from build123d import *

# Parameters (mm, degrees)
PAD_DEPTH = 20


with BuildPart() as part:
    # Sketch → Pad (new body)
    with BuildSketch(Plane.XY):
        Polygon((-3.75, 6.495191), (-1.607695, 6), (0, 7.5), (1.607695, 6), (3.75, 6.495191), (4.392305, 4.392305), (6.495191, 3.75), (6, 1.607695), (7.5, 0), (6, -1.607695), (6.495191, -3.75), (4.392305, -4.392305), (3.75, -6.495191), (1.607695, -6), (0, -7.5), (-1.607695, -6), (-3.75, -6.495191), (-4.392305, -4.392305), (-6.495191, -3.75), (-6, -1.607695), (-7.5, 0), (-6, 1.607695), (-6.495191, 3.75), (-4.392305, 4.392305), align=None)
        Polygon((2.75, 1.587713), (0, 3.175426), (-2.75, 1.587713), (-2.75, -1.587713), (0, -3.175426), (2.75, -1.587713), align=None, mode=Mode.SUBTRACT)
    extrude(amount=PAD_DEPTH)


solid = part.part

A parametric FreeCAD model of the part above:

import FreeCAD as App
import Part
import Sketcher

V = App.Vector
Q = App.Units.Quantity


def add_polygon(sketch, points):
    """Adds a closed chain of lines whose ends are joined by coincident constraints."""
    first, n = sketch.GeometryCount, len(points)
    for a, b in zip(points, points[1:] + points[:1]):
        sketch.addGeometry(Part.LineSegment(App.Vector(*a, 0), App.Vector(*b, 0)), False)
    for i in range(n):
        sketch.addConstraint(Sketcher.Constraint("Coincident", first + i, 2, first + (i + 1) % n, 1))

doc = App.newDocument("Part")
params = doc.addObject("Spreadsheet::Sheet", "Params")
for row, (alias, value) in enumerate([
    ("pad1_length", "20 mm"),
], start=1):
    params.set(f"A{row}", alias)
    params.set(f"B{row}", "=" + value)
    params.setAlias(f"B{row}", alias)

body = doc.addObject("PartDesign::Body", "Body")

sketch1 = body.newObject("Sketcher::SketchObject", "Sketch")
sketch1.AttachmentSupport = (doc.getObject("XY_Plane"), [""])
sketch1.MapMode = "FlatFace"
add_polygon(sketch1, [(-1.6, 6), (-3.8, 6.5), (-4.4, 4.4), (-6.5, 3.8), (-6, 1.6), (-7.5, 0), (-6, -1.6), (-6.5, -3.8), (-4.4, -4.4), (-3.8, -6.5), (-1.6, -6), (0, -7.5), (1.6, -6), (3.8, -6.5), (4.4, -4.4), (6.5, -3.8), (6, -1.6), (7.5, 0), (6, 1.6), (6.5, 3.8), (4.4, 4.4), (3.8, 6.5), (1.6, 6), (0, 7.5)])
add_polygon(sketch1, [(2.8, 1.6), (2.8, -1.6), (0, -3.2), (-2.8, -1.6), (-2.8, 1.6), (0, 3.2)])
sketch1.addConstraint(Sketcher.Constraint("Vertical", 24))
sketch1.addConstraint(Sketcher.Constraint("Vertical", 27))
sketch1.addConstraint(Sketcher.Constraint("Symmetric", 0, 2, 12, 2, -1, 1))
sketch1.addConstraint(Sketcher.Constraint("Symmetric", 1, 2, 13, 2, -1, 1))
sketch1.addConstraint(Sketcher.Constraint("Symmetric", 2, 2, 14, 2, -1, 1))
sketch1.addConstraint(Sketcher.Constraint("Symmetric", 3, 2, 15, 2, -1, 1))
sketch1.addConstraint(Sketcher.Constraint("Symmetric", 4, 2, 16, 2, -1, 1))
sketch1.addConstraint(Sketcher.Constraint("Symmetric", 5, 2, 17, 2, -1, 1))
sketch1.addConstraint(Sketcher.Constraint("Symmetric", 6, 2, 18, 2, -1, 1))
sketch1.addConstraint(Sketcher.Constraint("Symmetric", 7, 2, 19, 2, -1, 1))
sketch1.addConstraint(Sketcher.Constraint("Symmetric", 8, 2, 20, 2, -1, 1))
sketch1.addConstraint(Sketcher.Constraint("Symmetric", 9, 2, 21, 2, -1, 1))
sketch1.addConstraint(Sketcher.Constraint("Symmetric", 10, 2, 22, 2, -1, 1))
sketch1.addConstraint(Sketcher.Constraint("Symmetric", 11, 2, 23, 2, -1, 1))
sketch1.addConstraint(Sketcher.Constraint("Symmetric", 24, 2, 27, 2, -1, 1))
sketch1.addConstraint(Sketcher.Constraint("Symmetric", 25, 2, 28, 2, -1, 1))
sketch1.addConstraint(Sketcher.Constraint("Symmetric", 9, 2, 11, 2, -2))
sketch1.addConstraint(Sketcher.Constraint("Symmetric", 8, 2, 12, 2, -2))
sketch1.addConstraint(Sketcher.Constraint("Symmetric", 7, 2, 13, 2, -2))
sketch1.addConstraint(Sketcher.Constraint("Symmetric", 6, 2, 14, 2, -2))
sketch1.addConstraint(Sketcher.Constraint("Symmetric", 5, 2, 15, 2, -2))
sketch1.addConstraint(Sketcher.Constraint("PointOnObject", 4, 2, -1))
sketch1.addConstraint(Sketcher.Constraint("PointOnObject", 10, 2, -2))
sketch1.addConstraint(Sketcher.Constraint("PointOnObject", 25, 2, -2))
sketch1.addConstraint(Sketcher.Constraint("Perpendicular", 0, 6))
sketch1.addConstraint(Sketcher.Constraint("Perpendicular", 1, 7))
sketch1.addConstraint(Sketcher.Constraint("Perpendicular", 4, 10))
sketch1.addConstraint(Sketcher.Constraint("Parallel", 26, 29))
sketch1.addConstraint(Sketcher.Constraint("Horizontal", 24, 2, 26, 2))
sketch1.addConstraint(Sketcher.Constraint("Equal", 0, 1))
sketch1.addConstraint(Sketcher.Constraint("Equal", 1, 2))
sketch1.addConstraint(Sketcher.Constraint("Equal", 2, 3))
sketch1.addConstraint(Sketcher.Constraint("Equal", 3, 4))
sketch1.addConstraint(Sketcher.Constraint("Equal", 9, 10))
sketch1.addConstraint(Sketcher.Constraint("Angle", 25, Q("-150.000004 deg")))
sketch1.addConstraint(Sketcher.Constraint("DistanceX", 3, 2, -1, 1, Q("6 mm")))
sketch1.addConstraint(Sketcher.Constraint("DistanceY", 5, 2, 1, 2, Q("6 mm")))
sketch1.addConstraint(Sketcher.Constraint("DistanceX", 4, 2, -1, 1, Q("7.5 mm")))
sketch1.addConstraint(Sketcher.Constraint("DistanceY", 6, 2, 2, 2, Q("7.5 mm")))
sketch1.addConstraint(Sketcher.Constraint("DistanceX", -1, 1, 24, 2, Q("2.75 mm")))
sketch1.addConstraint(Sketcher.Constraint("DistanceY", 24, 2, 24, 1, Q("3.175426 mm")))
pad1 = body.newObject("PartDesign::Pad", "Pad")
pad1.Profile = sketch1
pad1.setExpression("Length", "Params.pad1_length")

doc.recompute()
